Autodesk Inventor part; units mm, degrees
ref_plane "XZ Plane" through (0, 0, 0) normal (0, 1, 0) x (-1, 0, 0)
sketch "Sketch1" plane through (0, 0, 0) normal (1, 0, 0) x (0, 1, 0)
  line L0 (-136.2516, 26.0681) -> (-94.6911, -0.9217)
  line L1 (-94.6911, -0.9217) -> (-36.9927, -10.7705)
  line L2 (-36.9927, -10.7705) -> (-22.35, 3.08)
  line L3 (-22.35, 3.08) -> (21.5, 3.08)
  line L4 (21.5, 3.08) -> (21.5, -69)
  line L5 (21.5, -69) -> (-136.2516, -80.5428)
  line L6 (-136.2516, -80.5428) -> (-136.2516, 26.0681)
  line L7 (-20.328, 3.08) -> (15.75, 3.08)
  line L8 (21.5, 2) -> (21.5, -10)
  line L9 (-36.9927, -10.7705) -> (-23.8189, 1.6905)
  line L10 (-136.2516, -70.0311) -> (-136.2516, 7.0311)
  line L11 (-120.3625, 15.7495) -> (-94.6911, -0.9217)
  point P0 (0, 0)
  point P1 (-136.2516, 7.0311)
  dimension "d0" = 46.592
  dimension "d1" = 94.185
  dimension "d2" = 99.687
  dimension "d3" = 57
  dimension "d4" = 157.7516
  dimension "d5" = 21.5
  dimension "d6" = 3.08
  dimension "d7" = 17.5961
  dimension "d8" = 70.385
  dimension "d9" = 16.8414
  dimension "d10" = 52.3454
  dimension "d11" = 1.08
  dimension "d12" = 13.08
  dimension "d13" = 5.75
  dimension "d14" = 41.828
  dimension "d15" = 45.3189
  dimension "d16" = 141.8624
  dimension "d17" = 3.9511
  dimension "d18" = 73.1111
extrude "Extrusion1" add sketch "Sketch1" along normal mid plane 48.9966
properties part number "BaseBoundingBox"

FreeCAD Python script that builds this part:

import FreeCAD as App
import Part
import Sketcher
from FreeCAD import Vector
Q = App.Units.Quantity

doc = App.newDocument("Part")
body = doc.addObject("PartDesign::Body", "Body")

# Sketch on YZ plane
sketch1 = doc.addObject("Sketcher::SketchObject", "Sketch")
body.addObject(sketch1)
sketch1.AttachmentSupport = (doc.YZ_Plane, [""])
sketch1.MapMode = "FlatFace"
sketch1.addGeometry(Part.LineSegment(Vector(-94.6911, -0.9217, 0), Vector(-136.2516, 26.0681, 0)), False)
sketch1.addGeometry(Part.LineSegment(Vector(-136.2516, 26.0681, 0), Vector(-136.2516, -80.5428, 0)), False)
sketch1.addGeometry(Part.LineSegment(Vector(-136.2516, -80.5428, 0), Vector(21.5, -69, 0)), False)
sketch1.addGeometry(Part.LineSegment(Vector(21.5, -69, 0), Vector(21.5, 3.08, 0)), False)
sketch1.addGeometry(Part.LineSegment(Vector(21.5, 3.08, 0), Vector(-22.35, 3.08, 0)), False)
sketch1.addGeometry(Part.LineSegment(Vector(-22.35, 3.08, 0), Vector(-36.9927, -10.7705, 0)), False)
sketch1.addGeometry(Part.LineSegment(Vector(-36.9927, -10.7705, 0), Vector(-94.6911, -0.9217, 0)), False)
sketch1.addConstraint(Sketcher.Constraint("Coincident", 0, 2, 1, 1))
sketch1.addConstraint(Sketcher.Constraint("Coincident", 1, 2, 2, 1))
sketch1.addConstraint(Sketcher.Constraint("Coincident", 2, 2, 3, 1))
sketch1.addConstraint(Sketcher.Constraint("Coincident", 3, 2, 4, 1))
sketch1.addConstraint(Sketcher.Constraint("Coincident", 4, 2, 5, 1))
sketch1.addConstraint(Sketcher.Constraint("Coincident", 5, 2, 6, 1))
sketch1.addConstraint(Sketcher.Constraint("Coincident", 6, 2, 0, 1))
sketch1.addConstraint(Sketcher.Constraint("Vertical", 1))
sketch1.addConstraint(Sketcher.Constraint("Vertical", 3))
sketch1.addConstraint(Sketcher.Constraint("Horizontal", 4))
sketch1.addConstraint(Sketcher.Constraint("Angle", 0, Q("147 deg")))
sketch1.addConstraint(Sketcher.Constraint("DistanceX", 1, 2, 2, 2, Q("6.2107 in")))
sketch1.addConstraint(Sketcher.Constraint("DistanceX", -1, 1, 2, 2, Q("21.5 mm")))
sketch1.addConstraint(Sketcher.Constraint("DistanceY", -1, 1, 3, 2, Q("3.08 mm")))
sketch1.addConstraint(Sketcher.Constraint("Distance", 0, Q("1.951 in")))
sketch1.addConstraint(Sketcher.Constraint("DistanceY", 3, 1, 3, 2, Q("2.8378 in")))
sketch1.addConstraint(Sketcher.Constraint("Distance", 2, Q("6.2273 in")))
sketch1.addConstraint(Sketcher.Constraint("DistanceX", 4, 2, 4, 1, Q("43.85 mm")))
sketch1.addConstraint(Sketcher.Constraint("DistanceY", 1, 2, 1, 1, Q("106.611 mm")))
sketch1.addConstraint(Sketcher.Constraint("DistanceX", 5, 2, -1, 1, Q("1.4564 in")))
sketch1.addConstraint(Sketcher.Constraint("DistanceY", 5, 2, 4, 2, Q("0.5453 in")))
pad1 = doc.addObject("PartDesign::Pad", "Pad")
body.addObject(pad1)
pad1.Profile = sketch1
pad1.Length = Q("1.929 in")
pad1.Midplane = True

doc.recompute()
